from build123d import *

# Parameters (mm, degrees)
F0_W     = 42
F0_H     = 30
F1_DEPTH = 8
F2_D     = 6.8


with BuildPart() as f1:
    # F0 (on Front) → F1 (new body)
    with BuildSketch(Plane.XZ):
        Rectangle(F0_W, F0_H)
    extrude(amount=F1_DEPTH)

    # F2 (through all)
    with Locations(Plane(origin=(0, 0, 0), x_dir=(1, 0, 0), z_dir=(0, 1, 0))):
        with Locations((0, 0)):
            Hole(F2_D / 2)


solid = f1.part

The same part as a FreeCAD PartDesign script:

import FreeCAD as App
import Part
import Sketcher
Q = App.Units.Quantity

doc = App.newDocument("Part")
body = doc.addObject("PartDesign::Body", "Body")

sketch1 = body.newObject("Sketcher::SketchObject", "Sketch")
sketch1.AttachmentSupport = (doc.getObject("XZ_Plane"), [""])
sketch1.MapMode = "FlatFace"
sketch1.addGeometry([
    Part.LineSegment(App.Vector(-21, 15, 0), App.Vector(-21, -15, 0)),
    Part.LineSegment(App.Vector(-21, -15, 0), App.Vector(21, -15, 0)),
    Part.LineSegment(App.Vector(21, -15, 0), App.Vector(21, 15, 0)),
    Part.LineSegment(App.Vector(21, 15, 0), App.Vector(-21, 15, 0)),
], False)
sketch1.addConstraint([
    Sketcher.Constraint("Coincident", 0, 2, 1, 1),
    Sketcher.Constraint("Coincident", 1, 2, 2, 1),
    Sketcher.Constraint("Coincident", 2, 2, 3, 1),
    Sketcher.Constraint("Coincident", 3, 2, 0, 1),
    Sketcher.Constraint("Vertical", 0),
    Sketcher.Constraint("Horizontal", 1),
    Sketcher.Constraint("Vertical", 2),
    Sketcher.Constraint("Horizontal", 3),
    Sketcher.Constraint("Symmetric", 0, 2, 2, 2, -1, 1),
    Sketcher.Constraint("DistanceX", 1, 1, 1, 2, Q("42 mm")),
    Sketcher.Constraint("DistanceY", 0, 2, 0, 1, Q("30 mm")),
])
pad1 = body.newObject("PartDesign::Pad", "Pad")
pad1.Profile = sketch1
pad1.Length = 8

sketch2 = body.newObject("Sketcher::SketchObject", "Sketch001")
sketch2.AttachmentSupport = (doc.getObject("XZ_Plane"), [""])
sketch2.MapMode = "FlatFace"
sketch2.addGeometry(Part.Circle(App.Vector(0, 0, 0), App.Vector(0, 0, 1), 3.4), False)
sketch2.addConstraint([
    Sketcher.Constraint("Coincident", 0, 3, -1, 1),
    Sketcher.Constraint("Diameter", 0, Q("6.8 mm")),
])
doc.recompute()
hole = body.newObject("PartDesign::Hole", "Hole")
hole.Profile = sketch2
hole.ThreadType = "None"
hole.Diameter = 6.8
hole.DepthType = "ThroughAll"
hole.Reversed = True

doc.recompute()
